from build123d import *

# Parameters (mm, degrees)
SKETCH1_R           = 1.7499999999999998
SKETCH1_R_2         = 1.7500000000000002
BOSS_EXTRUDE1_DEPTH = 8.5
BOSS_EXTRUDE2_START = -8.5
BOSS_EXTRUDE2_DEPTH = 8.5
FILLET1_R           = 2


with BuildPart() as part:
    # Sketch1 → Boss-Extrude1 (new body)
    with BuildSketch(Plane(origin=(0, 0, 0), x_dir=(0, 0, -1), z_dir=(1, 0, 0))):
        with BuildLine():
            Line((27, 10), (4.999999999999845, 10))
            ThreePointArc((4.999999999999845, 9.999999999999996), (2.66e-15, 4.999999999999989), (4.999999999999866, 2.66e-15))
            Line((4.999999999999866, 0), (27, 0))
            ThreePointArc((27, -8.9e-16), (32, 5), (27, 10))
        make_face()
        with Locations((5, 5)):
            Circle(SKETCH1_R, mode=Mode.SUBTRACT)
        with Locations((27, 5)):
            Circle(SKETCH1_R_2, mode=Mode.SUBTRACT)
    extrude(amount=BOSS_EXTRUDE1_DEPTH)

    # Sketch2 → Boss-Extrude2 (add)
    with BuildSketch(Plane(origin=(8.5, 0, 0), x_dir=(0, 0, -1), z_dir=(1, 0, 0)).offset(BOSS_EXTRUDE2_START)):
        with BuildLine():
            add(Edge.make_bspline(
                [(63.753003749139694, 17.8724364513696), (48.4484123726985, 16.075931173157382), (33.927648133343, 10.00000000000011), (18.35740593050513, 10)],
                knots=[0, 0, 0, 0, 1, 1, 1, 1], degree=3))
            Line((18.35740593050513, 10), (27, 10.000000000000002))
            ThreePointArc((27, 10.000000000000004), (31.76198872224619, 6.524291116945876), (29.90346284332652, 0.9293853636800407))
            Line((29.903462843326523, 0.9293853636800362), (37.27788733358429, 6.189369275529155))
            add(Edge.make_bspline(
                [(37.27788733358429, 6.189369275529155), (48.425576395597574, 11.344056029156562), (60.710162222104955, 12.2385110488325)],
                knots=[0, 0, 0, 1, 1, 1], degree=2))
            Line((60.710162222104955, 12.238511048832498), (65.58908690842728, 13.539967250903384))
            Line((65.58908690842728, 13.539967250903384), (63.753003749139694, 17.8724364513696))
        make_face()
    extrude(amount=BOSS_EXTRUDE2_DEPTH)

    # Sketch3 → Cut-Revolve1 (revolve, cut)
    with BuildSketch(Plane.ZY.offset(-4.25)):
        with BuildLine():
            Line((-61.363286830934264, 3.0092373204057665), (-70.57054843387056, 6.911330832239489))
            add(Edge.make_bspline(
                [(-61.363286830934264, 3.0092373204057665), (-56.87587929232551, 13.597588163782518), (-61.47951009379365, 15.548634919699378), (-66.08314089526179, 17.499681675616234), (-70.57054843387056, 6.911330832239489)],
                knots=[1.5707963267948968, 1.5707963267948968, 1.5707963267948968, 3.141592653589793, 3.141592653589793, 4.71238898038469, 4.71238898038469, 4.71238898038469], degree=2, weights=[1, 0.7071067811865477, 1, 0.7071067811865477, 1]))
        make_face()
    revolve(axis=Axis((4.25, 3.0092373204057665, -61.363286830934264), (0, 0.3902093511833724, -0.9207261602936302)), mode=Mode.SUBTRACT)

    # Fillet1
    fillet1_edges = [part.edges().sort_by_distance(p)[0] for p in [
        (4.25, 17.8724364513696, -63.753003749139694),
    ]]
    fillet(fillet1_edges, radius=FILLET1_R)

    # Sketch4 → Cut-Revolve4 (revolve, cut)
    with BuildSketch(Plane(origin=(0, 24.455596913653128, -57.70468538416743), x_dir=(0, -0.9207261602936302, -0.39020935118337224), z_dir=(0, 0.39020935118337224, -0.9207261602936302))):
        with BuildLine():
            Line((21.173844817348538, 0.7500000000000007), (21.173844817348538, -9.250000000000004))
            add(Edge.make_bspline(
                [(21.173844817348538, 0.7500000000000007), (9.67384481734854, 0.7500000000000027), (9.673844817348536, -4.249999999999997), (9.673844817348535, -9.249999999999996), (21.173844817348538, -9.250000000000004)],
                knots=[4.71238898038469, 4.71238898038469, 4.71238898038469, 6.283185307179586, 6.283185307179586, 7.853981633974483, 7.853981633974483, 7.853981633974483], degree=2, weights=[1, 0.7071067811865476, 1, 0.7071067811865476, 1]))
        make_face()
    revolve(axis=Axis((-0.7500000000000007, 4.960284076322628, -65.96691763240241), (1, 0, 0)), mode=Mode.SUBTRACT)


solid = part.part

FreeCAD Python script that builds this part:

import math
import FreeCAD as App
import Part
import Sketcher
Q = App.Units.Quantity


def edges_at(feature, points):
    """Names of the edges that pass closest to the given points."""
    edges = feature.Shape.Edges
    near = lambda p: min(range(len(edges)), key=lambda i: edges[i].distToShape(Part.Vertex(*p))[0])
    return sorted({f"Edge{near(p) + 1}" for p in points})

doc = App.newDocument("Part")
body = doc.addObject("PartDesign::Body", "Body")

sketch1 = body.newObject("Sketcher::SketchObject", "Sketch")
sketch1.AttachmentSupport = (doc.getObject("YZ_Plane"), [""])
sketch1.MapMode = "FlatFace"
sketch1.addGeometry(Part.LineSegment(App.Vector(10, -27, 0), App.Vector(10, -5, 0)), False)
sketch1.addGeometry(Part.ArcOfCircle(Part.Circle(App.Vector(5, -5, 0), App.Vector(0, 0, 1), 5), math.radians(0), math.radians(180)), False)
sketch1.addGeometry(Part.LineSegment(App.Vector(0, -5, 0), App.Vector(0, -27, 0)), False)
sketch1.addGeometry(Part.ArcOfCircle(Part.Circle(App.Vector(5, -27, 0), App.Vector(0, 0, 1), 5), math.radians(180), math.radians(360)), False)
sketch1.addGeometry(Part.Circle(App.Vector(5, -5, 0), App.Vector(0, 0, 1), 1.8), False)
sketch1.addGeometry(Part.Circle(App.Vector(5, -27, 0), App.Vector(0, 0, 1), 1.8), False)
sketch1.addConstraint(Sketcher.Constraint("Tangent", 0, 2, 1, 1))
sketch1.addConstraint(Sketcher.Constraint("Tangent", 1, 2, 2, 1))
sketch1.addConstraint(Sketcher.Constraint("Tangent", 2, 2, 3, 1))
sketch1.addConstraint(Sketcher.Constraint("Tangent", 3, 2, 0, 1))
sketch1.addConstraint(Sketcher.Constraint("Vertical", 0))
sketch1.addConstraint(Sketcher.Constraint("Vertical", 2))
sketch1.addConstraint(Sketcher.Constraint("Coincident", 4, 3, 1, 3))
sketch1.addConstraint(Sketcher.Constraint("Coincident", 5, 3, 3, 3))
sketch1.addConstraint(Sketcher.Constraint("Equal", 4, 5))
sketch1.addConstraint(Sketcher.Constraint("PointOnObject", 1, 2, -2))
sketch1.addConstraint(Sketcher.Constraint("Radius", 1, Q("5 mm")))
sketch1.addConstraint(Sketcher.Constraint("Diameter", 4, Q("3.5 mm")))
sketch1.addConstraint(Sketcher.Constraint("DistanceY", 0, 1, 0, 2, Q("22 mm")))
sketch1.addConstraint(Sketcher.Constraint("DistanceY", 1, 3, -1, 1, Q("5 mm")))
pad1 = body.newObject("PartDesign::Pad", "Pad")
pad1.Profile = sketch1
pad1.Length = 8.5

sketch2 = body.newObject("Sketcher::SketchObject", "Sketch001")
sketch2.AttachmentSupport = (doc.getObject("YZ_Plane"), [""])
sketch2.MapMode = "FlatFace"
sketch2.addGeometry(Part.BSplineCurve([App.Vector(17.872436, -63.753004, 0), App.Vector(16.075931, -48.448412, 0), App.Vector(10, -33.927648, 0), App.Vector(10, -18.357406, 0)], [4, 4], [0, 1], False, 3, [1, 1, 1, 1], False), False)
sketch2.addGeometry(Part.LineSegment(App.Vector(10, -18.357406, 0), App.Vector(10, -27, 0)), False)
sketch2.addGeometry(Part.ArcOfCircle(Part.Circle(App.Vector(5, -27, 0), App.Vector(0, 0, 1), 5), math.radians(-144.500731), math.radians(0)), False)
sketch2.addGeometry(Part.LineSegment(App.Vector(0.929385, -29.903463, 0), App.Vector(6.189369, -37.277887, 0)), False)
sketch2.addGeometry(Part.BSplineCurve([App.Vector(6.189369, -37.277887, 0), App.Vector(11.344056, -48.425576, 0), App.Vector(12.238511, -60.710162, 0)], [3, 3], [0, 1], False, 2, [1, 1, 1], False), False)
sketch2.addGeometry(Part.LineSegment(App.Vector(12.238511, -60.710162, 0), App.Vector(13.539967, -65.589087, 0)), False)
sketch2.addGeometry(Part.LineSegment(App.Vector(13.539967, -65.589087, 0), App.Vector(17.872436, -63.753004, 0)), False)
sketch2.addConstraint(Sketcher.Constraint("Block", 0))
sketch2.addConstraint(Sketcher.Constraint("Block", 4))
sketch2.addConstraint(Sketcher.Constraint("Coincident", 0, 2, 1, 1))
sketch2.addConstraint(Sketcher.Constraint("Tangent", 1, 2, 2, 2))
sketch2.addConstraint(Sketcher.Constraint("Tangent", 2, 1, 3, 1))
sketch2.addConstraint(Sketcher.Constraint("Coincident", 3, 2, 4, 1))
sketch2.addConstraint(Sketcher.Constraint("Coincident", 4, 2, 5, 1))
sketch2.addConstraint(Sketcher.Constraint("Coincident", 5, 2, 6, 1))
sketch2.addConstraint(Sketcher.Constraint("Coincident", 6, 2, 0, 1))
sketch2.addConstraint(Sketcher.Constraint("Vertical", 1))
sketch2.addConstraint(Sketcher.Constraint("Radius", 2, Q("5 mm")))
sketch2.addConstraint(Sketcher.Constraint("DistanceY", 2, 3, -1, 1, Q("27 mm")))
sketch2.addConstraint(Sketcher.Constraint("DistanceY", 5, 2, 3, 2, Q("28.3112 mm")))
sketch2.addConstraint(Sketcher.Constraint("DistanceX", 2, 1, 5, 2, Q("12.610582 mm")))
pad2 = body.newObject("PartDesign::Pad", "Pad001")
pad2.Profile = sketch2
pad2.Length = 8.5

sketch3 = body.newObject("Sketcher::SketchObject", "Sketch002")
sketch3.AttachmentSupport = (doc.getObject("YZ_Plane"), [""])
sketch3.MapMode = "FlatFace"
sketch3.AttachmentOffset = App.Placement(App.Vector(0, 0, 4.25), App.Rotation())
sketch3.addGeometry(Part.LineSegment(App.Vector(6.911331, -70.570548, 0), App.Vector(3.009237, -61.363287, 0)), False)
sketch3.addGeometry(Part.BSplineCurve([App.Vector(3.009237, -61.363287, 0), App.Vector(13.597588, -56.875879, 0), App.Vector(15.548635, -61.47951, 0), App.Vector(17.499682, -66.083141, 0), App.Vector(6.911331, -70.570548, 0)], [3, 2, 3], [1.570796327, 3.141592654, 4.71238898], False, 2, [1, 0.707106781, 1, 0.707106781, 1], False), False)
sketch3.addGeometry(Part.LineSegment(App.Vector(3.009237, -61.363287, 0), App.Vector(6.911331, -70.570548, 0)), True)
sketch3.addConstraint(Sketcher.Constraint("Block", 1))
sketch3.addConstraint(Sketcher.Constraint("Coincident", 0, 1, 1, 2))
sketch3.addConstraint(Sketcher.Constraint("Coincident", 1, 1, 0, 2))
sketch3.addConstraint(Sketcher.Constraint("Coincident", 2, 2, 0, 1))
sketch3.addConstraint(Sketcher.Constraint("Parallel", 0, 2))
sketch3.addConstraint(Sketcher.Constraint("Equal", 0, 2))
groove = body.newObject("PartDesign::Groove", "Groove")
groove.Profile = sketch3
groove.ReferenceAxis = (sketch3, ["Axis0"])
groove.Angle = 360
doc.recompute()

fillet = body.newObject("PartDesign::Fillet", "Fillet")
fillet.Base = (groove, edges_at(groove, [(4.25, 17.872, -63.753)]))
fillet.Radius = 2

sketch4 = body.newObject("Sketcher::SketchObject", "Sketch003")
sketch4.Placement = App.Placement(App.Vector(0, 24.455597, -57.704685), App.Rotation(App.Vector(0, -0.92072616, -0.390209351), App.Vector(-0.999999999, 0, 0), App.Vector(0, 0.390209351, -0.92072616), "ZXY"))
sketch4.addGeometry(Part.LineSegment(App.Vector(21.173845, -9.25, 0), App.Vector(21.173845, 0.75, 0)), False)
sketch4.addGeometry(Part.BSplineCurve([App.Vector(21.173845, 0.75, 0), App.Vector(9.673845, 0.75, 0), App.Vector(9.673845, -4.25, 0), App.Vector(9.673845, -9.25, 0), App.Vector(21.173845, -9.25, 0)], [3, 2, 3], [4.71238898, 6.283185307, 7.853981634], False, 2, [1, 0.707106781, 1, 0.707106781, 1], False), False)
sketch4.addGeometry(Part.LineSegment(App.Vector(21.173845, 0.75, 0), App.Vector(21.173845, -9.25, 0)), True)
sketch4.addConstraint(Sketcher.Constraint("Block", 1))
sketch4.addConstraint(Sketcher.Constraint("Coincident", 0, 1, 1, 2))
sketch4.addConstraint(Sketcher.Constraint("Coincident", 1, 1, 0, 2))
sketch4.addConstraint(Sketcher.Constraint("Vertical", 2))
sketch4.addConstraint(Sketcher.Constraint("Coincident", 2, 2, 0, 1))
sketch4.addConstraint(Sketcher.Constraint("Equal", 0, 2))
groove2 = body.newObject("PartDesign::Groove", "Groove001")
groove2.Profile = sketch4
groove2.ReferenceAxis = (sketch4, ["Axis0"])
groove2.Angle = 360

doc.recompute()
